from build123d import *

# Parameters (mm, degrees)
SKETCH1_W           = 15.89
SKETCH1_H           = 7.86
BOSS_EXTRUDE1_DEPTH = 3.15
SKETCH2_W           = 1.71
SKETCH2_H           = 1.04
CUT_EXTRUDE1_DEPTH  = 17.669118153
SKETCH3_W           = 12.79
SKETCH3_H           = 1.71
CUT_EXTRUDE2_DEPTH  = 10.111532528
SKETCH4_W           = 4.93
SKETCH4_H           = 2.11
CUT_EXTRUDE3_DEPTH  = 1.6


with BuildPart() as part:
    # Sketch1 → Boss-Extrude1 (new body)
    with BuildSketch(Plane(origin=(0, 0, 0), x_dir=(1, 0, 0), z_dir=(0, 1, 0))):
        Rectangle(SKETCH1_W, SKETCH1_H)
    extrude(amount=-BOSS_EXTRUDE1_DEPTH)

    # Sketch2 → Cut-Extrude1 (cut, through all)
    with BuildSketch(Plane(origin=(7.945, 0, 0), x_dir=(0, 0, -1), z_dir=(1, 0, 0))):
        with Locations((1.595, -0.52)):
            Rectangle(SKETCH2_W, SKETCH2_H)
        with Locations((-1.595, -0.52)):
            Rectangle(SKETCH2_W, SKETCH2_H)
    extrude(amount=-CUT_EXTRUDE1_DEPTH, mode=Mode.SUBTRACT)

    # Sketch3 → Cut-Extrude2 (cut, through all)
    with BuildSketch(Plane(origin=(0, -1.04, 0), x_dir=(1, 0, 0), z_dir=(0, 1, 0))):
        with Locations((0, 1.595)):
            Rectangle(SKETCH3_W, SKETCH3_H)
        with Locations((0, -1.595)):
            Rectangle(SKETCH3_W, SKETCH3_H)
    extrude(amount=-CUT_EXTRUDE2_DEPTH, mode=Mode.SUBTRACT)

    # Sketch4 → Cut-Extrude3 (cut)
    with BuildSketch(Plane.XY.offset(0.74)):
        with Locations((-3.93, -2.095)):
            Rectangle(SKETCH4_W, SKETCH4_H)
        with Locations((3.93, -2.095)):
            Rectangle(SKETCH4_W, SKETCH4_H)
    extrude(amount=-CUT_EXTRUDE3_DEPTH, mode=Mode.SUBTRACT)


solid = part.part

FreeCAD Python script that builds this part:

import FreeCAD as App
import Part
import Sketcher


def add_polygon(sketch, points):
    """Adds a closed chain of lines whose ends are joined by coincident constraints."""
    first, n = sketch.GeometryCount, len(points)
    for a, b in zip(points, points[1:] + points[:1]):
        sketch.addGeometry(Part.LineSegment(App.Vector(*a, 0), App.Vector(*b, 0)), False)
    for i in range(n):
        sketch.addConstraint(Sketcher.Constraint("Coincident", first + i, 2, first + (i + 1) % n, 1))

doc = App.newDocument("Part")
body = doc.addObject("PartDesign::Body", "Body")

# Sketch on XZ plane
sketch1 = doc.addObject("Sketcher::SketchObject", "Sketch")
body.addObject(sketch1)
sketch1.AttachmentSupport = (doc.XZ_Plane, [""])
sketch1.MapMode = "FlatFace"
add_polygon(sketch1, [(-8, -4), (-8, 4), (8, 4), (8, -4)])  # lines 0-3
sketch1.addConstraint(Sketcher.Constraint("Vertical", 0))
sketch1.addConstraint(Sketcher.Constraint("Horizontal", 1))
sketch1.addConstraint(Sketcher.Constraint("Vertical", 2))
sketch1.addConstraint(Sketcher.Constraint("Horizontal", 3))
sketch1.addConstraint(Sketcher.Constraint("Symmetric", 0, 2, 2, 2, -1, 1))
sketch1.addConstraint(Sketcher.Constraint("DistanceX", 1, 1, 1, 2, 15.89))
sketch1.addConstraint(Sketcher.Constraint("DistanceY", 0, 1, 0, 2, 7.86))
pad1 = doc.addObject("PartDesign::Pad", "Pad")
body.addObject(pad1)
pad1.Profile = sketch1
pad1.Length = 3.15

# Sketch on YZ plane
sketch2 = doc.addObject("Sketcher::SketchObject", "Sketch001")
body.addObject(sketch2)
sketch2.AttachmentSupport = (doc.YZ_Plane, [""])
sketch2.MapMode = "FlatFace"
sketch2.AttachmentOffset = App.Placement(App.Vector(0, 0, 7.945), App.Rotation())
add_polygon(sketch2, [(0, -0.7), (-1, -0.7), (-1, -2.5), (0, -2.5)])  # lines 0-3
add_polygon(sketch2, [(0, 2.5), (-1, 2.5), (-1, 0.7), (0, 0.7)])  # lines 4-7
sketch2.addConstraint(Sketcher.Constraint("Horizontal", 0))
sketch2.addConstraint(Sketcher.Constraint("Vertical", 1))
sketch2.addConstraint(Sketcher.Constraint("Horizontal", 2))
sketch2.addConstraint(Sketcher.Constraint("Vertical", 3))
sketch2.addConstraint(Sketcher.Constraint("Horizontal", 4))
sketch2.addConstraint(Sketcher.Constraint("Vertical", 5))
sketch2.addConstraint(Sketcher.Constraint("Horizontal", 6))
sketch2.addConstraint(Sketcher.Constraint("Vertical", 7))
sketch2.addConstraint(Sketcher.Constraint("Symmetric", 3, 2, 6, 2, -1, 1))
sketch2.addConstraint(Sketcher.Constraint("Symmetric", 1, 2, 4, 2, -1))
sketch2.addConstraint(Sketcher.Constraint("PointOnObject", 2, 2, -2))
sketch2.addConstraint(Sketcher.Constraint("DistanceX", 0, 2, 0, 1, 1.04))
sketch2.addConstraint(Sketcher.Constraint("DistanceY", 1, 2, 1, 1, 1.71))
sketch2.addConstraint(Sketcher.Constraint("DistanceY", 1, 2, 4, 2, 4.9))
pocket1 = doc.addObject("PartDesign::Pocket", "Pocket")
body.addObject(pocket1)
pocket1.Profile = sketch2
pocket1.Type = "ThroughAll"

# Sketch on XZ plane
sketch3 = doc.addObject("Sketcher::SketchObject", "Sketch002")
body.addObject(sketch3)
sketch3.AttachmentSupport = (doc.XZ_Plane, [""])
sketch3.MapMode = "FlatFace"
sketch3.AttachmentOffset = App.Placement(App.Vector(0, 0, 1.04), App.Rotation())
add_polygon(sketch3, [(-6.4, -2.5), (-6.4, -0.7), (6.4, -0.7), (6.4, -2.5)])  # lines 0-3
add_polygon(sketch3, [(-6.4, 0.7), (-6.4, 2.5), (6.4, 2.5), (6.4, 0.7)])  # lines 4-7
sketch3.addConstraint(Sketcher.Constraint("Vertical", 0))
sketch3.addConstraint(Sketcher.Constraint("Horizontal", 1))
sketch3.addConstraint(Sketcher.Constraint("Vertical", 2))
sketch3.addConstraint(Sketcher.Constraint("Horizontal", 3))
sketch3.addConstraint(Sketcher.Constraint("Vertical", 4))
sketch3.addConstraint(Sketcher.Constraint("Horizontal", 5))
sketch3.addConstraint(Sketcher.Constraint("Vertical", 6))
sketch3.addConstraint(Sketcher.Constraint("Horizontal", 7))
sketch3.addConstraint(Sketcher.Constraint("Symmetric", 2, 2, 4, 2, -1, 1))
sketch3.addConstraint(Sketcher.Constraint("Symmetric", 0, 2, 6, 2, -1, 1))
sketch3.addConstraint(Sketcher.Constraint("Vertical", 3, 2, 4, 2))
sketch3.addConstraint(Sketcher.Constraint("DistanceX", 1, 1, 1, 2, 12.79))
sketch3.addConstraint(Sketcher.Constraint("DistanceY", 0, 1, 0, 2, 1.71))
sketch3.addConstraint(Sketcher.Constraint("DistanceY", 3, 2, 4, 2, 4.9))
pocket2 = doc.addObject("PartDesign::Pocket", "Pocket001")
body.addObject(pocket2)
pocket2.Profile = sketch3
pocket2.Type = "ThroughAll"
pocket2.Reversed = True

# Sketch on XY plane
sketch4 = doc.addObject("Sketcher::SketchObject", "Sketch003")
body.addObject(sketch4)
sketch4.AttachmentSupport = (doc.XY_Plane, [""])
sketch4.MapMode = "FlatFace"
sketch4.AttachmentOffset = App.Placement(App.Vector(0, 0, 0.74), App.Rotation())
add_polygon(sketch4, [(-6.4, -1), (-6.4, -3.1), (-1.5, -3.1), (-1.5, -1)])  # lines 0-3
add_polygon(sketch4, [(1.5, -1), (1.5, -3.1), (6.4, -3.1), (6.4, -1)])  # lines 4-7
sketch4.addConstraint(Sketcher.Constraint("Vertical", 0))
sketch4.addConstraint(Sketcher.Constraint("Horizontal", 1))
sketch4.addConstraint(Sketcher.Constraint("Vertical", 2))
sketch4.addConstraint(Sketcher.Constraint("Horizontal", 3))
sketch4.addConstraint(Sketcher.Constraint("Vertical", 4))
sketch4.addConstraint(Sketcher.Constraint("Horizontal", 5))
sketch4.addConstraint(Sketcher.Constraint("Vertical", 6))
sketch4.addConstraint(Sketcher.Constraint("Horizontal", 7))
sketch4.addConstraint(Sketcher.Constraint("Symmetric", 1, 2, 4, 2, -2))
sketch4.addConstraint(Sketcher.Constraint("Symmetric", 3, 2, 6, 2, -2))
sketch4.addConstraint(Sketcher.Constraint("DistanceX", 1, 1, 1, 2, 4.93))
sketch4.addConstraint(Sketcher.Constraint("DistanceY", 0, 2, 0, 1, 2.11))
sketch4.addConstraint(Sketcher.Constraint("DistanceY", 0, 2, -1, 1, 3.15))
sketch4.addConstraint(Sketcher.Constraint("DistanceX", 1, 2, 4, 2, 2.93))
pocket3 = doc.addObject("PartDesign::Pocket", "Pocket002")
body.addObject(pocket3)
pocket3.Profile = sketch4
pocket3.Length = 1.6

doc.recompute()
